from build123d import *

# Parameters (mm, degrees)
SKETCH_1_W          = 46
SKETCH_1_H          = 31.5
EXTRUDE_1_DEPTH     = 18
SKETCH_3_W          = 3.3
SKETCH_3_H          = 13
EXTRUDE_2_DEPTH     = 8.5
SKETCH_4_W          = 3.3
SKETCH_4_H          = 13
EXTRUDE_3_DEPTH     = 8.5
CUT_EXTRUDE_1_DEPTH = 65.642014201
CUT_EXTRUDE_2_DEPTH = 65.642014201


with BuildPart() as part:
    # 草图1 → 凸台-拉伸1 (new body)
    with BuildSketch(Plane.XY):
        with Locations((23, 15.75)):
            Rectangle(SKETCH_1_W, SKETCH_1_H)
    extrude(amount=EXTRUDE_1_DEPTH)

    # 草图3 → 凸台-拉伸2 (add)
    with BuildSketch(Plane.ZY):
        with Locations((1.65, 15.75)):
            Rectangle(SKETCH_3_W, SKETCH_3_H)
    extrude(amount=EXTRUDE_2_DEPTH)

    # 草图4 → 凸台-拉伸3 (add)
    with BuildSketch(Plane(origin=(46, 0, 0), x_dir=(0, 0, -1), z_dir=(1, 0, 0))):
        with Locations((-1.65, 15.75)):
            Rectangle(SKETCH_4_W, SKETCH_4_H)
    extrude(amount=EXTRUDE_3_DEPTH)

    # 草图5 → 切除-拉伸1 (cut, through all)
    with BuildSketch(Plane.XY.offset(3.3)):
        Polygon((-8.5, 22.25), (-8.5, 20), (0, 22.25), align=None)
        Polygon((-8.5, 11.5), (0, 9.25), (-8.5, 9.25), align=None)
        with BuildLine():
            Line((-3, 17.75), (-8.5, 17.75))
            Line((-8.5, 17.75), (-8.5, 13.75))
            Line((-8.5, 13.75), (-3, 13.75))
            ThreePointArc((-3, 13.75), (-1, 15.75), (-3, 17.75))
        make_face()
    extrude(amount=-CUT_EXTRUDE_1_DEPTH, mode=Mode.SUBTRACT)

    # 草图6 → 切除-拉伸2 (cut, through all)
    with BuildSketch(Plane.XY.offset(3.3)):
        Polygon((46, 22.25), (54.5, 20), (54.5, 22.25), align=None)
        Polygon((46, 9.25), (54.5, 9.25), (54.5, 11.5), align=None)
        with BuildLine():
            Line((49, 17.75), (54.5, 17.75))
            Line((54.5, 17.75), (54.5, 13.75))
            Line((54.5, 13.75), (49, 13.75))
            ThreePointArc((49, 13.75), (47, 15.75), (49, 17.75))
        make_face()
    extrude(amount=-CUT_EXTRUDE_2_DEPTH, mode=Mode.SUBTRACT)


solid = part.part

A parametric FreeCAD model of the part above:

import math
import FreeCAD as App
import Part
import Sketcher
from FreeCAD import Vector

doc = App.newDocument("Part")
body = doc.addObject("PartDesign::Body", "Body")

# Sketch on XY plane
sketch1 = body.newObject("Sketcher::SketchObject", "Sketch")
sketch1.AttachmentSupport = (doc.getObject("XY_Plane"), [""])
sketch1.MapMode = "FlatFace"
sketch1.addGeometry(Part.LineSegment(Vector(0, 32, 0), Vector(0, 0, 0)), False)
sketch1.addGeometry(Part.LineSegment(Vector(0, 0, 0), Vector(46, 0, 0)), False)
sketch1.addGeometry(Part.LineSegment(Vector(46, 0, 0), Vector(46, 32, 0)), False)
sketch1.addGeometry(Part.LineSegment(Vector(46, 32, 0), Vector(0, 32, 0)), False)
sketch1.addConstraint(Sketcher.Constraint("Coincident", 0, 2, 1, 1))
sketch1.addConstraint(Sketcher.Constraint("Coincident", 1, 2, 2, 1))
sketch1.addConstraint(Sketcher.Constraint("Coincident", 2, 2, 3, 1))
sketch1.addConstraint(Sketcher.Constraint("Coincident", 3, 2, 0, 1))
sketch1.addConstraint(Sketcher.Constraint("Vertical", 0))
sketch1.addConstraint(Sketcher.Constraint("Horizontal", 1))
sketch1.addConstraint(Sketcher.Constraint("Vertical", 2))
sketch1.addConstraint(Sketcher.Constraint("Horizontal", 3))
sketch1.addConstraint(Sketcher.Constraint("Coincident", 0, 2, -1, 1))
sketch1.addConstraint(Sketcher.Constraint("DistanceX", 1, 1, 1, 2, 46.0))
sketch1.addConstraint(Sketcher.Constraint("DistanceY", 0, 2, 0, 1, 31.5))
pad1 = body.newObject("PartDesign::Pad", "Pad")
pad1.Profile = sketch1
pad1.Length = 18

# Sketch on YZ plane
sketch2 = body.newObject("Sketcher::SketchObject", "Sketch001")
sketch2.AttachmentSupport = (doc.getObject("YZ_Plane"), [""])
sketch2.MapMode = "FlatFace"
sketch2.addGeometry(Part.LineSegment(Vector(22.2, 0, 0), Vector(9.2, 0, 0)), False)
sketch2.addGeometry(Part.LineSegment(Vector(9.2, 0, 0), Vector(9.2, 3.3, 0)), False)
sketch2.addGeometry(Part.LineSegment(Vector(9.2, 3.3, 0), Vector(22.2, 3.3, 0)), False)
sketch2.addGeometry(Part.LineSegment(Vector(22.2, 3.3, 0), Vector(22.2, 0, 0)), False)
sketch2.addConstraint(Sketcher.Constraint("Coincident", 0, 2, 1, 1))
sketch2.addConstraint(Sketcher.Constraint("Coincident", 1, 2, 2, 1))
sketch2.addConstraint(Sketcher.Constraint("Coincident", 2, 2, 3, 1))
sketch2.addConstraint(Sketcher.Constraint("Coincident", 3, 2, 0, 1))
sketch2.addConstraint(Sketcher.Constraint("Horizontal", 0))
sketch2.addConstraint(Sketcher.Constraint("Vertical", 1))
sketch2.addConstraint(Sketcher.Constraint("Horizontal", 2))
sketch2.addConstraint(Sketcher.Constraint("Vertical", 3))
sketch2.addConstraint(Sketcher.Constraint("PointOnObject", 0, 2, -1))
sketch2.addConstraint(Sketcher.Constraint("DistanceX", 0, 2, 0, 1, 13.0))
sketch2.addConstraint(Sketcher.Constraint("DistanceY", 1, 1, 1, 2, 3.3))
sketch2.addConstraint(Sketcher.Constraint("DistanceX", -1, 1, 0, 2, 9.25))
pad2 = body.newObject("PartDesign::Pad", "Pad001")
pad2.Profile = sketch2
pad2.Length = 8.5
pad2.Reversed = True

# Sketch on YZ plane
sketch3 = body.newObject("Sketcher::SketchObject", "Sketch002")
sketch3.AttachmentSupport = (doc.getObject("YZ_Plane"), [""])
sketch3.MapMode = "FlatFace"
sketch3.AttachmentOffset = App.Placement(Vector(0, 0, 46), App.Rotation())
sketch3.addGeometry(Part.LineSegment(Vector(22.2, 3.3, 0), Vector(9.2, 3.3, 0)), False)
sketch3.addGeometry(Part.LineSegment(Vector(9.2, 3.3, 0), Vector(9.2, 0, 0)), False)
sketch3.addGeometry(Part.LineSegment(Vector(9.2, 0, 0), Vector(22.2, 0, 0)), False)
sketch3.addGeometry(Part.LineSegment(Vector(22.2, 0, 0), Vector(22.2, 3.3, 0)), False)
sketch3.addConstraint(Sketcher.Constraint("Coincident", 0, 2, 1, 1))
sketch3.addConstraint(Sketcher.Constraint("Coincident", 1, 2, 2, 1))
sketch3.addConstraint(Sketcher.Constraint("Coincident", 2, 2, 3, 1))
sketch3.addConstraint(Sketcher.Constraint("Coincident", 3, 2, 0, 1))
sketch3.addConstraint(Sketcher.Constraint("Horizontal", 0))
sketch3.addConstraint(Sketcher.Constraint("Vertical", 1))
sketch3.addConstraint(Sketcher.Constraint("Horizontal", 2))
sketch3.addConstraint(Sketcher.Constraint("Vertical", 3))
sketch3.addConstraint(Sketcher.Constraint("PointOnObject", 1, 2, -1))
sketch3.addConstraint(Sketcher.Constraint("DistanceX", 0, 2, 0, 1, 13.0))
sketch3.addConstraint(Sketcher.Constraint("DistanceY", 1, 2, 1, 1, 3.3))
sketch3.addConstraint(Sketcher.Constraint("DistanceX", -1, 1, 0, 2, 9.25))
pad3 = body.newObject("PartDesign::Pad", "Pad002")
pad3.Profile = sketch3
pad3.Length = 8.5

# Sketch on XY plane
sketch4 = body.newObject("Sketcher::SketchObject", "Sketch003")
sketch4.AttachmentSupport = (doc.getObject("XY_Plane"), [""])
sketch4.MapMode = "FlatFace"
sketch4.AttachmentOffset = App.Placement(Vector(0, 0, 3.3), App.Rotation())
sketch4.addGeometry(Part.LineSegment(Vector(-8.5, 22.2, 0), Vector(-8.5, 20, 0)), False)
sketch4.addGeometry(Part.LineSegment(Vector(-8.5, 20, 0), Vector(0, 22.2, 0)), False)
sketch4.addGeometry(Part.LineSegment(Vector(0, 22.2, 0), Vector(-8.5, 22.2, 0)), False)
sketch4.addGeometry(Part.LineSegment(Vector(0, 9.2, 0), Vector(-8.5, 11.5, 0)), False)
sketch4.addGeometry(Part.LineSegment(Vector(-8.5, 11.5, 0), Vector(-8.5, 9.2, 0)), False)
sketch4.addGeometry(Part.LineSegment(Vector(-8.5, 9.2, 0), Vector(0, 9.2, 0)), False)
sketch4.addGeometry(Part.LineSegment(Vector(-3, 17.8, 0), Vector(-8.5, 17.8, 0)), False)
sketch4.addGeometry(Part.LineSegment(Vector(-8.5, 17.8, 0), Vector(-8.5, 13.8, 0)), False)
sketch4.addGeometry(Part.LineSegment(Vector(-8.5, 13.8, 0), Vector(-3, 13.8, 0)), False)
sketch4.addGeometry(Part.ArcOfCircle(Part.Circle(Vector(-3, 15.8, 0), Vector(0, 0, 1), 2), math.radians(-90), math.radians(90)), False)
sketch4.addConstraint(Sketcher.Constraint("Coincident", 0, 2, 1, 1))
sketch4.addConstraint(Sketcher.Constraint("Coincident", 1, 2, 2, 1))
sketch4.addConstraint(Sketcher.Constraint("Coincident", 2, 2, 0, 1))
sketch4.addConstraint(Sketcher.Constraint("Coincident", 3, 2, 4, 1))
sketch4.addConstraint(Sketcher.Constraint("Coincident", 4, 2, 5, 1))
sketch4.addConstraint(Sketcher.Constraint("Coincident", 5, 2, 3, 1))
sketch4.addConstraint(Sketcher.Constraint("Coincident", 6, 2, 7, 1))
sketch4.addConstraint(Sketcher.Constraint("Coincident", 7, 2, 8, 1))
sketch4.addConstraint(Sketcher.Constraint("Tangent", 8, 2, 9, 1))
sketch4.addConstraint(Sketcher.Constraint("Tangent", 9, 2, 6, 1))
sketch4.addConstraint(Sketcher.Constraint("Vertical", 0))
sketch4.addConstraint(Sketcher.Constraint("Horizontal", 2))
sketch4.addConstraint(Sketcher.Constraint("Vertical", 4))
sketch4.addConstraint(Sketcher.Constraint("Horizontal", 5))
sketch4.addConstraint(Sketcher.Constraint("Horizontal", 6))
sketch4.addConstraint(Sketcher.Constraint("Vertical", 7))
sketch4.addConstraint(Sketcher.Constraint("Horizontal", 8))
sketch4.addConstraint(Sketcher.Constraint("PointOnObject", 1, 2, -2))
sketch4.addConstraint(Sketcher.Constraint("PointOnObject", 5, 2, -2))
sketch4.addConstraint(Sketcher.Constraint("Vertical", 2, 2, 3, 2))
sketch4.addConstraint(Sketcher.Constraint("Vertical", 4, 2, 6, 2))
sketch4.addConstraint(Sketcher.Constraint("Equal", 0, 4))
sketch4.addConstraint(Sketcher.Constraint("Radius", 9, 2.0))
sketch4.addConstraint(Sketcher.Constraint("DistanceX", 2, 2, 2, 1, 8.5))
sketch4.addConstraint(Sketcher.Constraint("DistanceX", 6, 2, 6, 1, 5.5))
sketch4.addConstraint(Sketcher.Constraint("DistanceY", -1, 1, 0, 2, 20.0))
sketch4.addConstraint(Sketcher.Constraint("DistanceY", 4, 2, 2, 2, 13.0))
sketch4.addConstraint(Sketcher.Constraint("DistanceY", 0, 2, 0, 1, 2.25))
sketch4.addConstraint(Sketcher.Constraint("DistanceY", 9, 3, 1, 2, 6.5))
pocket1 = body.newObject("PartDesign::Pocket", "Pocket")
pocket1.Profile = sketch4
pocket1.Type = "ThroughAll"

# Sketch on XY plane
sketch5 = body.newObject("Sketcher::SketchObject", "Sketch004")
sketch5.AttachmentSupport = (doc.getObject("XY_Plane"), [""])
sketch5.MapMode = "FlatFace"
sketch5.AttachmentOffset = App.Placement(Vector(0, 0, 3.3), App.Rotation())
sketch5.addGeometry(Part.LineSegment(Vector(46, 22.2, 0), Vector(54.5, 20, 0)), False)
sketch5.addGeometry(Part.LineSegment(Vector(54.5, 20, 0), Vector(54.5, 22.2, 0)), False)
sketch5.addGeometry(Part.LineSegment(Vector(54.5, 22.2, 0), Vector(46, 22.2, 0)), False)
sketch5.addGeometry(Part.LineSegment(Vector(46, 9.2, 0), Vector(54.5, 9.2, 0)), False)
sketch5.addGeometry(Part.LineSegment(Vector(54.5, 9.2, 0), Vector(54.5, 11.5, 0)), False)
sketch5.addGeometry(Part.LineSegment(Vector(54.5, 11.5, 0), Vector(46, 9.2, 0)), False)
sketch5.addGeometry(Part.LineSegment(Vector(54.5, 17.8, 0), Vector(49, 17.8, 0)), False)
sketch5.addGeometry(Part.ArcOfCircle(Part.Circle(Vector(49, 15.8, 0), Vector(0, 0, 1), 2), math.radians(90), math.radians(270)), False)
sketch5.addGeometry(Part.LineSegment(Vector(49, 13.8, 0), Vector(54.5, 13.8, 0)), False)
sketch5.addGeometry(Part.LineSegment(Vector(54.5, 13.8, 0), Vector(54.5, 17.8, 0)), False)
sketch5.addConstraint(Sketcher.Constraint("Coincident", 0, 2, 1, 1))
sketch5.addConstraint(Sketcher.Constraint("Coincident", 1, 2, 2, 1))
sketch5.addConstraint(Sketcher.Constraint("Coincident", 2, 2, 0, 1))
sketch5.addConstraint(Sketcher.Constraint("Coincident", 3, 2, 4, 1))
sketch5.addConstraint(Sketcher.Constraint("Coincident", 4, 2, 5, 1))
sketch5.addConstraint(Sketcher.Constraint("Coincident", 5, 2, 3, 1))
sketch5.addConstraint(Sketcher.Constraint("Tangent", 6, 2, 7, 1))
sketch5.addConstraint(Sketcher.Constraint("Tangent", 7, 2, 8, 1))
sketch5.addConstraint(Sketcher.Constraint("Coincident", 8, 2, 9, 1))
sketch5.addConstraint(Sketcher.Constraint("Coincident", 9, 2, 6, 1))
sketch5.addConstraint(Sketcher.Constraint("Vertical", 1))
sketch5.addConstraint(Sketcher.Constraint("Horizontal", 2))
sketch5.addConstraint(Sketcher.Constraint("Horizontal", 3))
sketch5.addConstraint(Sketcher.Constraint("Vertical", 4))
sketch5.addConstraint(Sketcher.Constraint("Horizontal", 6))
sketch5.addConstraint(Sketcher.Constraint("Horizontal", 8))
sketch5.addConstraint(Sketcher.Constraint("Vertical", 9))
sketch5.addConstraint(Sketcher.Constraint("Vertical", 1, 2, 3, 2))
sketch5.addConstraint(Sketcher.Constraint("Vertical", 2, 2, 5, 2))
sketch5.addConstraint(Sketcher.Constraint("Vertical", 4, 2, 8, 2))
sketch5.addConstraint(Sketcher.Constraint("Equal", 1, 4))
sketch5.addConstraint(Sketcher.Constraint("Radius", 7, 2.0))
sketch5.addConstraint(Sketcher.Constraint("DistanceX", 2, 2, 2, 1, 8.5))
sketch5.addConstraint(Sketcher.Constraint("DistanceX", 6, 2, 6, 1, 5.5))
sketch5.addConstraint(Sketcher.Constraint("DistanceX", -1, 1, 7, 3, 49.0))
sketch5.addConstraint(Sketcher.Constraint("DistanceY", -1, 1, 0, 2, 20.0))
sketch5.addConstraint(Sketcher.Constraint("DistanceY", 3, 2, 1, 2, 13.0))
sketch5.addConstraint(Sketcher.Constraint("DistanceY", 1, 1, 1, 2, 2.25))
sketch5.addConstraint(Sketcher.Constraint("DistanceY", 7, 3, 1, 2, 6.5))
pocket2 = body.newObject("PartDesign::Pocket", "Pocket001")
pocket2.Profile = sketch5
pocket2.Type = "ThroughAll"

doc.recompute()
